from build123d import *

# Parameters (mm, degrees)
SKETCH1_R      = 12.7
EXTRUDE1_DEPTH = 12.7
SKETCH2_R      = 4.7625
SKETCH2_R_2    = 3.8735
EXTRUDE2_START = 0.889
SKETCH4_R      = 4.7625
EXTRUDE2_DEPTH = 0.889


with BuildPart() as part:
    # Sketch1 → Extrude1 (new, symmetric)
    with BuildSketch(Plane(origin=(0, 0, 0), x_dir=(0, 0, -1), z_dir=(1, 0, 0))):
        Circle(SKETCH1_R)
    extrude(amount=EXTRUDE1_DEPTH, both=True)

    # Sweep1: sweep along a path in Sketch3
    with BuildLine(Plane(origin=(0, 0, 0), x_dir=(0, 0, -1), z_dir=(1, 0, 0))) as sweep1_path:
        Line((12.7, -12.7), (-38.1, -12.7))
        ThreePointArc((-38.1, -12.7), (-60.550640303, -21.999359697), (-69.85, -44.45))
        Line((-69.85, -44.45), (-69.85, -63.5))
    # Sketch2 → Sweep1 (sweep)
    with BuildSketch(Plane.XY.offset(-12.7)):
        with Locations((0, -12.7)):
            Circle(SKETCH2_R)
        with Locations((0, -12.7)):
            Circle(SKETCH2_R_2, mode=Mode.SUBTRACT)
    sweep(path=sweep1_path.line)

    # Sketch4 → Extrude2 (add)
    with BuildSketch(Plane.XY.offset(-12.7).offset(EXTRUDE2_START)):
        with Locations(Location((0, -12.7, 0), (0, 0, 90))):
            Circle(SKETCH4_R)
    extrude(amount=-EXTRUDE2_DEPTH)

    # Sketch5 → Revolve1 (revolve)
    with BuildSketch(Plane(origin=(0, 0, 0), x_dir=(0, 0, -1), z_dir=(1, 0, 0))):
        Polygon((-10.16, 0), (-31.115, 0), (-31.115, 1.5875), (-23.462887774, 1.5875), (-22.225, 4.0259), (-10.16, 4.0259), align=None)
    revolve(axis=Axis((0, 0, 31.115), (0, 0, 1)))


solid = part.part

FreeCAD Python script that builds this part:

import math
import FreeCAD as App
import Part
import Sketcher

V = App.Vector
Q = App.Units.Quantity

doc = App.newDocument("Part")
params = doc.addObject("Spreadsheet::Sheet", "Params")
for row, (alias, value) in enumerate([
    ("sketch1_diameter", "1 in"),
    ("pad1_length", "1 in"),
    ("sketch2_diameter", "0.375 in"),
    ("sketch2_diameter2", "0.305 in"),
    ("sketch3_height", "2 in"),
    ("sketch3_radius", "1.25 in"),
    ("sketch4_diameter", "0.375 in"),
    ("pad2_length", "0.035 in"),
    ("sketch5_width", "0.0625 in"),
    ("sketch5_height", "0.825 in"),
    ("sketch5_height2", "0.475 in"),
    ("revolution_angle", "360 deg"),
], start=1):
    params.set(f"A{row}", alias)
    params.set(f"B{row}", "=" + value)
    params.setAlias(f"B{row}", alias)

body = doc.addObject("PartDesign::Body", "Body")

sketch1 = body.newObject("Sketcher::SketchObject", "Sketch")
sketch1.AttachmentSupport = (doc.getObject("YZ_Plane"), [""])
sketch1.MapMode = "FlatFace"
sketch1.addGeometry(Part.Circle(V(0, 0, 0), V(0, 0, 1), 13), False)
sketch1.addConstraint(Sketcher.Constraint("Coincident", 0, 3, -1, 1))
sketch1.addConstraint(Sketcher.Constraint("Diameter", 0, Q("1 in")))
sketch1.setExpression("Constraints[1]", "Params.sketch1_diameter")
pad1 = body.newObject("PartDesign::Pad", "Pad")
pad1.Profile = sketch1
pad1.setExpression("Length", "Params.pad1_length")
pad1.Midplane = True

sketch2 = body.newObject("Sketcher::SketchObject", "Sketch001")
sketch2.AttachmentSupport = (doc.getObject("XY_Plane"), [""])
sketch2.MapMode = "FlatFace"
sketch2.AttachmentOffset = App.Placement(V(0, 0, -0.5 * 25.4), App.Rotation())
sketch2.addGeometry(Part.Circle(V(0, -12.7, 0), V(0, 0, 1), 4.8), False)
sketch2.addGeometry(Part.Circle(V(0, -12.7, 0), V(0, 0, 1), 3.9), False)
sketch2.addConstraint(Sketcher.Constraint("Coincident", 1, 3, 0, 3))
sketch2.addConstraint(Sketcher.Constraint("PointOnObject", 0, 3, -2))
sketch2.addConstraint(Sketcher.Constraint("Diameter", 0, Q("0.375 in")))
sketch2.addConstraint(Sketcher.Constraint("Diameter", 1, Q("0.305 in")))
sketch2.addConstraint(Sketcher.Constraint("DistanceY", 0, 3, -1, 1, Q("0.5 in")))
sketch2.setExpression("Constraints[2]", "Params.sketch2_diameter")
sketch2.setExpression("Constraints[3]", "Params.sketch2_diameter2")

sketch3 = body.newObject("Sketcher::SketchObject", "Sketch002")
sketch3.AttachmentSupport = (doc.getObject("YZ_Plane"), [""])
sketch3.MapMode = "FlatFace"
sketch3.addGeometry(Part.LineSegment(V(-13, -13, 0), V(-13, 38, 0)), False)
sketch3.addGeometry(Part.ArcOfCircle(Part.Circle(V(-44, 38, 0), V(0, 0, 1), 32), math.radians(0), math.radians(90)), False)
sketch3.addGeometry(Part.LineSegment(V(-44, 70, 0), V(-64, 70, 0)), False)
sketch3.addConstraint(Sketcher.Constraint("Tangent", 0, 2, 1, 1))
sketch3.addConstraint(Sketcher.Constraint("Tangent", 1, 2, 2, 1))
sketch3.addConstraint(Sketcher.Constraint("Vertical", 0))
sketch3.addConstraint(Sketcher.Constraint("Horizontal", 2))
sketch3.addConstraint(Sketcher.Constraint("DistanceY", 0, 1, 0, 2, Q("2 in")))
sketch3.addConstraint(Sketcher.Constraint("Radius", 1, Q("1.25 in")))
sketch3.addConstraint(Sketcher.Constraint("DistanceX", 2, 2, 0, 2, Q("2 in")))
sketch3.addConstraint(Sketcher.Constraint("DistanceY", -1, 1, 1, 3, Q("1.5 in")))
sketch3.addConstraint(Sketcher.Constraint("DistanceX", 0, 1, -1, 1, Q("0.5 in")))
sketch3.setExpression("Constraints[4]", "Params.sketch3_height")
sketch3.setExpression("Constraints[5]", "Params.sketch3_radius")
doc.recompute()

additivepipe = body.newObject("PartDesign::AdditivePipe", "AdditivePipe")
additivepipe.Profile = sketch2
additivepipe.Spine = (sketch3, ["Edge1", "Edge2", "Edge3"])

sketch4 = body.newObject("Sketcher::SketchObject", "Sketch003")
sketch4.AttachmentSupport = (doc.getObject("XY_Plane"), [""])
sketch4.MapMode = "FlatFace"
sketch4.AttachmentOffset = App.Placement(V(0, 0, -0.465 * 25.4), App.Rotation())
sketch4.addGeometry(Part.Circle(V(0, -12.7, 0), V(0, 0, 1), 4.8), False)
sketch4.addConstraint(Sketcher.Constraint("PointOnObject", 0, 3, -2))
sketch4.addConstraint(Sketcher.Constraint("Diameter", 0, Q("0.375 in")))
sketch4.addConstraint(Sketcher.Constraint("DistanceY", 0, 3, -1, 1, Q("0.5 in")))
sketch4.setExpression("Constraints[1]", "Params.sketch4_diameter")
pad2 = body.newObject("PartDesign::Pad", "Pad001")
pad2.Profile = sketch4
pad2.setExpression("Length", "Params.pad2_length")
pad2.Reversed = True

sketch5 = body.newObject("Sketcher::SketchObject", "Sketch004")
sketch5.AttachmentSupport = (doc.getObject("YZ_Plane"), [""])
sketch5.MapMode = "FlatFace"
sketch5.addGeometry(Part.LineSegment(V(0, 31.1, 0), V(0, 10.2, 0)), False)
sketch5.addGeometry(Part.LineSegment(V(0, 10.2, 0), V(4, 10.2, 0)), False)
sketch5.addGeometry(Part.LineSegment(V(4, 10.2, 0), V(4, 22.2, 0)), False)
sketch5.addGeometry(Part.LineSegment(V(4, 22.2, 0), V(1.6, 23.5, 0)), False)
sketch5.addGeometry(Part.LineSegment(V(1.6, 23.5, 0), V(1.6, 31.1, 0)), False)
sketch5.addGeometry(Part.LineSegment(V(1.6, 31.1, 0), V(0, 31.1, 0)), False)
sketch5.addConstraint(Sketcher.Constraint("Coincident", 0, 2, 1, 1))
sketch5.addConstraint(Sketcher.Constraint("Coincident", 1, 2, 2, 1))
sketch5.addConstraint(Sketcher.Constraint("Coincident", 2, 2, 3, 1))
sketch5.addConstraint(Sketcher.Constraint("Coincident", 3, 2, 4, 1))
sketch5.addConstraint(Sketcher.Constraint("Coincident", 4, 2, 5, 1))
sketch5.addConstraint(Sketcher.Constraint("Coincident", 5, 2, 0, 1))
sketch5.addConstraint(Sketcher.Constraint("Vertical", 0))
sketch5.addConstraint(Sketcher.Constraint("Horizontal", 1))
sketch5.addConstraint(Sketcher.Constraint("Vertical", 2))
sketch5.addConstraint(Sketcher.Constraint("Vertical", 4))
sketch5.addConstraint(Sketcher.Constraint("Horizontal", 5))
sketch5.addConstraint(Sketcher.Constraint("PointOnObject", 0, 2, -2))
sketch5.addConstraint(Sketcher.Constraint("DistanceY", -1, 1, 0, 2, Q("0.4 in")))
sketch5.addConstraint(Sketcher.Constraint("DistanceX", 5, 2, 5, 1, Q("0.0625 in")))
sketch5.addConstraint(Sketcher.Constraint("DistanceY", 0, 2, 0, 1, Q("0.825 in")))
sketch5.addConstraint(Sketcher.Constraint("DistanceY", 2, 1, 2, 2, Q("0.475 in")))
sketch5.addConstraint(Sketcher.Constraint("DistanceX", 1, 1, 1, 2, Q("0.1585 in")))
sketch5.addConstraint(Sketcher.Constraint("DistanceY", 4, 1, 4, 2, Q("7.652112 mm")))
sketch5.setExpression("Constraints[13]", "Params.sketch5_width")
sketch5.setExpression("Constraints[14]", "Params.sketch5_height")
sketch5.setExpression("Constraints[15]", "Params.sketch5_height2")
revolution = body.newObject("PartDesign::Revolution", "Revolution")
revolution.Profile = sketch5
revolution.ReferenceAxis = (sketch5, ["V_Axis"])
revolution.setExpression("Angle", "Params.revolution_angle")

doc.recompute()
